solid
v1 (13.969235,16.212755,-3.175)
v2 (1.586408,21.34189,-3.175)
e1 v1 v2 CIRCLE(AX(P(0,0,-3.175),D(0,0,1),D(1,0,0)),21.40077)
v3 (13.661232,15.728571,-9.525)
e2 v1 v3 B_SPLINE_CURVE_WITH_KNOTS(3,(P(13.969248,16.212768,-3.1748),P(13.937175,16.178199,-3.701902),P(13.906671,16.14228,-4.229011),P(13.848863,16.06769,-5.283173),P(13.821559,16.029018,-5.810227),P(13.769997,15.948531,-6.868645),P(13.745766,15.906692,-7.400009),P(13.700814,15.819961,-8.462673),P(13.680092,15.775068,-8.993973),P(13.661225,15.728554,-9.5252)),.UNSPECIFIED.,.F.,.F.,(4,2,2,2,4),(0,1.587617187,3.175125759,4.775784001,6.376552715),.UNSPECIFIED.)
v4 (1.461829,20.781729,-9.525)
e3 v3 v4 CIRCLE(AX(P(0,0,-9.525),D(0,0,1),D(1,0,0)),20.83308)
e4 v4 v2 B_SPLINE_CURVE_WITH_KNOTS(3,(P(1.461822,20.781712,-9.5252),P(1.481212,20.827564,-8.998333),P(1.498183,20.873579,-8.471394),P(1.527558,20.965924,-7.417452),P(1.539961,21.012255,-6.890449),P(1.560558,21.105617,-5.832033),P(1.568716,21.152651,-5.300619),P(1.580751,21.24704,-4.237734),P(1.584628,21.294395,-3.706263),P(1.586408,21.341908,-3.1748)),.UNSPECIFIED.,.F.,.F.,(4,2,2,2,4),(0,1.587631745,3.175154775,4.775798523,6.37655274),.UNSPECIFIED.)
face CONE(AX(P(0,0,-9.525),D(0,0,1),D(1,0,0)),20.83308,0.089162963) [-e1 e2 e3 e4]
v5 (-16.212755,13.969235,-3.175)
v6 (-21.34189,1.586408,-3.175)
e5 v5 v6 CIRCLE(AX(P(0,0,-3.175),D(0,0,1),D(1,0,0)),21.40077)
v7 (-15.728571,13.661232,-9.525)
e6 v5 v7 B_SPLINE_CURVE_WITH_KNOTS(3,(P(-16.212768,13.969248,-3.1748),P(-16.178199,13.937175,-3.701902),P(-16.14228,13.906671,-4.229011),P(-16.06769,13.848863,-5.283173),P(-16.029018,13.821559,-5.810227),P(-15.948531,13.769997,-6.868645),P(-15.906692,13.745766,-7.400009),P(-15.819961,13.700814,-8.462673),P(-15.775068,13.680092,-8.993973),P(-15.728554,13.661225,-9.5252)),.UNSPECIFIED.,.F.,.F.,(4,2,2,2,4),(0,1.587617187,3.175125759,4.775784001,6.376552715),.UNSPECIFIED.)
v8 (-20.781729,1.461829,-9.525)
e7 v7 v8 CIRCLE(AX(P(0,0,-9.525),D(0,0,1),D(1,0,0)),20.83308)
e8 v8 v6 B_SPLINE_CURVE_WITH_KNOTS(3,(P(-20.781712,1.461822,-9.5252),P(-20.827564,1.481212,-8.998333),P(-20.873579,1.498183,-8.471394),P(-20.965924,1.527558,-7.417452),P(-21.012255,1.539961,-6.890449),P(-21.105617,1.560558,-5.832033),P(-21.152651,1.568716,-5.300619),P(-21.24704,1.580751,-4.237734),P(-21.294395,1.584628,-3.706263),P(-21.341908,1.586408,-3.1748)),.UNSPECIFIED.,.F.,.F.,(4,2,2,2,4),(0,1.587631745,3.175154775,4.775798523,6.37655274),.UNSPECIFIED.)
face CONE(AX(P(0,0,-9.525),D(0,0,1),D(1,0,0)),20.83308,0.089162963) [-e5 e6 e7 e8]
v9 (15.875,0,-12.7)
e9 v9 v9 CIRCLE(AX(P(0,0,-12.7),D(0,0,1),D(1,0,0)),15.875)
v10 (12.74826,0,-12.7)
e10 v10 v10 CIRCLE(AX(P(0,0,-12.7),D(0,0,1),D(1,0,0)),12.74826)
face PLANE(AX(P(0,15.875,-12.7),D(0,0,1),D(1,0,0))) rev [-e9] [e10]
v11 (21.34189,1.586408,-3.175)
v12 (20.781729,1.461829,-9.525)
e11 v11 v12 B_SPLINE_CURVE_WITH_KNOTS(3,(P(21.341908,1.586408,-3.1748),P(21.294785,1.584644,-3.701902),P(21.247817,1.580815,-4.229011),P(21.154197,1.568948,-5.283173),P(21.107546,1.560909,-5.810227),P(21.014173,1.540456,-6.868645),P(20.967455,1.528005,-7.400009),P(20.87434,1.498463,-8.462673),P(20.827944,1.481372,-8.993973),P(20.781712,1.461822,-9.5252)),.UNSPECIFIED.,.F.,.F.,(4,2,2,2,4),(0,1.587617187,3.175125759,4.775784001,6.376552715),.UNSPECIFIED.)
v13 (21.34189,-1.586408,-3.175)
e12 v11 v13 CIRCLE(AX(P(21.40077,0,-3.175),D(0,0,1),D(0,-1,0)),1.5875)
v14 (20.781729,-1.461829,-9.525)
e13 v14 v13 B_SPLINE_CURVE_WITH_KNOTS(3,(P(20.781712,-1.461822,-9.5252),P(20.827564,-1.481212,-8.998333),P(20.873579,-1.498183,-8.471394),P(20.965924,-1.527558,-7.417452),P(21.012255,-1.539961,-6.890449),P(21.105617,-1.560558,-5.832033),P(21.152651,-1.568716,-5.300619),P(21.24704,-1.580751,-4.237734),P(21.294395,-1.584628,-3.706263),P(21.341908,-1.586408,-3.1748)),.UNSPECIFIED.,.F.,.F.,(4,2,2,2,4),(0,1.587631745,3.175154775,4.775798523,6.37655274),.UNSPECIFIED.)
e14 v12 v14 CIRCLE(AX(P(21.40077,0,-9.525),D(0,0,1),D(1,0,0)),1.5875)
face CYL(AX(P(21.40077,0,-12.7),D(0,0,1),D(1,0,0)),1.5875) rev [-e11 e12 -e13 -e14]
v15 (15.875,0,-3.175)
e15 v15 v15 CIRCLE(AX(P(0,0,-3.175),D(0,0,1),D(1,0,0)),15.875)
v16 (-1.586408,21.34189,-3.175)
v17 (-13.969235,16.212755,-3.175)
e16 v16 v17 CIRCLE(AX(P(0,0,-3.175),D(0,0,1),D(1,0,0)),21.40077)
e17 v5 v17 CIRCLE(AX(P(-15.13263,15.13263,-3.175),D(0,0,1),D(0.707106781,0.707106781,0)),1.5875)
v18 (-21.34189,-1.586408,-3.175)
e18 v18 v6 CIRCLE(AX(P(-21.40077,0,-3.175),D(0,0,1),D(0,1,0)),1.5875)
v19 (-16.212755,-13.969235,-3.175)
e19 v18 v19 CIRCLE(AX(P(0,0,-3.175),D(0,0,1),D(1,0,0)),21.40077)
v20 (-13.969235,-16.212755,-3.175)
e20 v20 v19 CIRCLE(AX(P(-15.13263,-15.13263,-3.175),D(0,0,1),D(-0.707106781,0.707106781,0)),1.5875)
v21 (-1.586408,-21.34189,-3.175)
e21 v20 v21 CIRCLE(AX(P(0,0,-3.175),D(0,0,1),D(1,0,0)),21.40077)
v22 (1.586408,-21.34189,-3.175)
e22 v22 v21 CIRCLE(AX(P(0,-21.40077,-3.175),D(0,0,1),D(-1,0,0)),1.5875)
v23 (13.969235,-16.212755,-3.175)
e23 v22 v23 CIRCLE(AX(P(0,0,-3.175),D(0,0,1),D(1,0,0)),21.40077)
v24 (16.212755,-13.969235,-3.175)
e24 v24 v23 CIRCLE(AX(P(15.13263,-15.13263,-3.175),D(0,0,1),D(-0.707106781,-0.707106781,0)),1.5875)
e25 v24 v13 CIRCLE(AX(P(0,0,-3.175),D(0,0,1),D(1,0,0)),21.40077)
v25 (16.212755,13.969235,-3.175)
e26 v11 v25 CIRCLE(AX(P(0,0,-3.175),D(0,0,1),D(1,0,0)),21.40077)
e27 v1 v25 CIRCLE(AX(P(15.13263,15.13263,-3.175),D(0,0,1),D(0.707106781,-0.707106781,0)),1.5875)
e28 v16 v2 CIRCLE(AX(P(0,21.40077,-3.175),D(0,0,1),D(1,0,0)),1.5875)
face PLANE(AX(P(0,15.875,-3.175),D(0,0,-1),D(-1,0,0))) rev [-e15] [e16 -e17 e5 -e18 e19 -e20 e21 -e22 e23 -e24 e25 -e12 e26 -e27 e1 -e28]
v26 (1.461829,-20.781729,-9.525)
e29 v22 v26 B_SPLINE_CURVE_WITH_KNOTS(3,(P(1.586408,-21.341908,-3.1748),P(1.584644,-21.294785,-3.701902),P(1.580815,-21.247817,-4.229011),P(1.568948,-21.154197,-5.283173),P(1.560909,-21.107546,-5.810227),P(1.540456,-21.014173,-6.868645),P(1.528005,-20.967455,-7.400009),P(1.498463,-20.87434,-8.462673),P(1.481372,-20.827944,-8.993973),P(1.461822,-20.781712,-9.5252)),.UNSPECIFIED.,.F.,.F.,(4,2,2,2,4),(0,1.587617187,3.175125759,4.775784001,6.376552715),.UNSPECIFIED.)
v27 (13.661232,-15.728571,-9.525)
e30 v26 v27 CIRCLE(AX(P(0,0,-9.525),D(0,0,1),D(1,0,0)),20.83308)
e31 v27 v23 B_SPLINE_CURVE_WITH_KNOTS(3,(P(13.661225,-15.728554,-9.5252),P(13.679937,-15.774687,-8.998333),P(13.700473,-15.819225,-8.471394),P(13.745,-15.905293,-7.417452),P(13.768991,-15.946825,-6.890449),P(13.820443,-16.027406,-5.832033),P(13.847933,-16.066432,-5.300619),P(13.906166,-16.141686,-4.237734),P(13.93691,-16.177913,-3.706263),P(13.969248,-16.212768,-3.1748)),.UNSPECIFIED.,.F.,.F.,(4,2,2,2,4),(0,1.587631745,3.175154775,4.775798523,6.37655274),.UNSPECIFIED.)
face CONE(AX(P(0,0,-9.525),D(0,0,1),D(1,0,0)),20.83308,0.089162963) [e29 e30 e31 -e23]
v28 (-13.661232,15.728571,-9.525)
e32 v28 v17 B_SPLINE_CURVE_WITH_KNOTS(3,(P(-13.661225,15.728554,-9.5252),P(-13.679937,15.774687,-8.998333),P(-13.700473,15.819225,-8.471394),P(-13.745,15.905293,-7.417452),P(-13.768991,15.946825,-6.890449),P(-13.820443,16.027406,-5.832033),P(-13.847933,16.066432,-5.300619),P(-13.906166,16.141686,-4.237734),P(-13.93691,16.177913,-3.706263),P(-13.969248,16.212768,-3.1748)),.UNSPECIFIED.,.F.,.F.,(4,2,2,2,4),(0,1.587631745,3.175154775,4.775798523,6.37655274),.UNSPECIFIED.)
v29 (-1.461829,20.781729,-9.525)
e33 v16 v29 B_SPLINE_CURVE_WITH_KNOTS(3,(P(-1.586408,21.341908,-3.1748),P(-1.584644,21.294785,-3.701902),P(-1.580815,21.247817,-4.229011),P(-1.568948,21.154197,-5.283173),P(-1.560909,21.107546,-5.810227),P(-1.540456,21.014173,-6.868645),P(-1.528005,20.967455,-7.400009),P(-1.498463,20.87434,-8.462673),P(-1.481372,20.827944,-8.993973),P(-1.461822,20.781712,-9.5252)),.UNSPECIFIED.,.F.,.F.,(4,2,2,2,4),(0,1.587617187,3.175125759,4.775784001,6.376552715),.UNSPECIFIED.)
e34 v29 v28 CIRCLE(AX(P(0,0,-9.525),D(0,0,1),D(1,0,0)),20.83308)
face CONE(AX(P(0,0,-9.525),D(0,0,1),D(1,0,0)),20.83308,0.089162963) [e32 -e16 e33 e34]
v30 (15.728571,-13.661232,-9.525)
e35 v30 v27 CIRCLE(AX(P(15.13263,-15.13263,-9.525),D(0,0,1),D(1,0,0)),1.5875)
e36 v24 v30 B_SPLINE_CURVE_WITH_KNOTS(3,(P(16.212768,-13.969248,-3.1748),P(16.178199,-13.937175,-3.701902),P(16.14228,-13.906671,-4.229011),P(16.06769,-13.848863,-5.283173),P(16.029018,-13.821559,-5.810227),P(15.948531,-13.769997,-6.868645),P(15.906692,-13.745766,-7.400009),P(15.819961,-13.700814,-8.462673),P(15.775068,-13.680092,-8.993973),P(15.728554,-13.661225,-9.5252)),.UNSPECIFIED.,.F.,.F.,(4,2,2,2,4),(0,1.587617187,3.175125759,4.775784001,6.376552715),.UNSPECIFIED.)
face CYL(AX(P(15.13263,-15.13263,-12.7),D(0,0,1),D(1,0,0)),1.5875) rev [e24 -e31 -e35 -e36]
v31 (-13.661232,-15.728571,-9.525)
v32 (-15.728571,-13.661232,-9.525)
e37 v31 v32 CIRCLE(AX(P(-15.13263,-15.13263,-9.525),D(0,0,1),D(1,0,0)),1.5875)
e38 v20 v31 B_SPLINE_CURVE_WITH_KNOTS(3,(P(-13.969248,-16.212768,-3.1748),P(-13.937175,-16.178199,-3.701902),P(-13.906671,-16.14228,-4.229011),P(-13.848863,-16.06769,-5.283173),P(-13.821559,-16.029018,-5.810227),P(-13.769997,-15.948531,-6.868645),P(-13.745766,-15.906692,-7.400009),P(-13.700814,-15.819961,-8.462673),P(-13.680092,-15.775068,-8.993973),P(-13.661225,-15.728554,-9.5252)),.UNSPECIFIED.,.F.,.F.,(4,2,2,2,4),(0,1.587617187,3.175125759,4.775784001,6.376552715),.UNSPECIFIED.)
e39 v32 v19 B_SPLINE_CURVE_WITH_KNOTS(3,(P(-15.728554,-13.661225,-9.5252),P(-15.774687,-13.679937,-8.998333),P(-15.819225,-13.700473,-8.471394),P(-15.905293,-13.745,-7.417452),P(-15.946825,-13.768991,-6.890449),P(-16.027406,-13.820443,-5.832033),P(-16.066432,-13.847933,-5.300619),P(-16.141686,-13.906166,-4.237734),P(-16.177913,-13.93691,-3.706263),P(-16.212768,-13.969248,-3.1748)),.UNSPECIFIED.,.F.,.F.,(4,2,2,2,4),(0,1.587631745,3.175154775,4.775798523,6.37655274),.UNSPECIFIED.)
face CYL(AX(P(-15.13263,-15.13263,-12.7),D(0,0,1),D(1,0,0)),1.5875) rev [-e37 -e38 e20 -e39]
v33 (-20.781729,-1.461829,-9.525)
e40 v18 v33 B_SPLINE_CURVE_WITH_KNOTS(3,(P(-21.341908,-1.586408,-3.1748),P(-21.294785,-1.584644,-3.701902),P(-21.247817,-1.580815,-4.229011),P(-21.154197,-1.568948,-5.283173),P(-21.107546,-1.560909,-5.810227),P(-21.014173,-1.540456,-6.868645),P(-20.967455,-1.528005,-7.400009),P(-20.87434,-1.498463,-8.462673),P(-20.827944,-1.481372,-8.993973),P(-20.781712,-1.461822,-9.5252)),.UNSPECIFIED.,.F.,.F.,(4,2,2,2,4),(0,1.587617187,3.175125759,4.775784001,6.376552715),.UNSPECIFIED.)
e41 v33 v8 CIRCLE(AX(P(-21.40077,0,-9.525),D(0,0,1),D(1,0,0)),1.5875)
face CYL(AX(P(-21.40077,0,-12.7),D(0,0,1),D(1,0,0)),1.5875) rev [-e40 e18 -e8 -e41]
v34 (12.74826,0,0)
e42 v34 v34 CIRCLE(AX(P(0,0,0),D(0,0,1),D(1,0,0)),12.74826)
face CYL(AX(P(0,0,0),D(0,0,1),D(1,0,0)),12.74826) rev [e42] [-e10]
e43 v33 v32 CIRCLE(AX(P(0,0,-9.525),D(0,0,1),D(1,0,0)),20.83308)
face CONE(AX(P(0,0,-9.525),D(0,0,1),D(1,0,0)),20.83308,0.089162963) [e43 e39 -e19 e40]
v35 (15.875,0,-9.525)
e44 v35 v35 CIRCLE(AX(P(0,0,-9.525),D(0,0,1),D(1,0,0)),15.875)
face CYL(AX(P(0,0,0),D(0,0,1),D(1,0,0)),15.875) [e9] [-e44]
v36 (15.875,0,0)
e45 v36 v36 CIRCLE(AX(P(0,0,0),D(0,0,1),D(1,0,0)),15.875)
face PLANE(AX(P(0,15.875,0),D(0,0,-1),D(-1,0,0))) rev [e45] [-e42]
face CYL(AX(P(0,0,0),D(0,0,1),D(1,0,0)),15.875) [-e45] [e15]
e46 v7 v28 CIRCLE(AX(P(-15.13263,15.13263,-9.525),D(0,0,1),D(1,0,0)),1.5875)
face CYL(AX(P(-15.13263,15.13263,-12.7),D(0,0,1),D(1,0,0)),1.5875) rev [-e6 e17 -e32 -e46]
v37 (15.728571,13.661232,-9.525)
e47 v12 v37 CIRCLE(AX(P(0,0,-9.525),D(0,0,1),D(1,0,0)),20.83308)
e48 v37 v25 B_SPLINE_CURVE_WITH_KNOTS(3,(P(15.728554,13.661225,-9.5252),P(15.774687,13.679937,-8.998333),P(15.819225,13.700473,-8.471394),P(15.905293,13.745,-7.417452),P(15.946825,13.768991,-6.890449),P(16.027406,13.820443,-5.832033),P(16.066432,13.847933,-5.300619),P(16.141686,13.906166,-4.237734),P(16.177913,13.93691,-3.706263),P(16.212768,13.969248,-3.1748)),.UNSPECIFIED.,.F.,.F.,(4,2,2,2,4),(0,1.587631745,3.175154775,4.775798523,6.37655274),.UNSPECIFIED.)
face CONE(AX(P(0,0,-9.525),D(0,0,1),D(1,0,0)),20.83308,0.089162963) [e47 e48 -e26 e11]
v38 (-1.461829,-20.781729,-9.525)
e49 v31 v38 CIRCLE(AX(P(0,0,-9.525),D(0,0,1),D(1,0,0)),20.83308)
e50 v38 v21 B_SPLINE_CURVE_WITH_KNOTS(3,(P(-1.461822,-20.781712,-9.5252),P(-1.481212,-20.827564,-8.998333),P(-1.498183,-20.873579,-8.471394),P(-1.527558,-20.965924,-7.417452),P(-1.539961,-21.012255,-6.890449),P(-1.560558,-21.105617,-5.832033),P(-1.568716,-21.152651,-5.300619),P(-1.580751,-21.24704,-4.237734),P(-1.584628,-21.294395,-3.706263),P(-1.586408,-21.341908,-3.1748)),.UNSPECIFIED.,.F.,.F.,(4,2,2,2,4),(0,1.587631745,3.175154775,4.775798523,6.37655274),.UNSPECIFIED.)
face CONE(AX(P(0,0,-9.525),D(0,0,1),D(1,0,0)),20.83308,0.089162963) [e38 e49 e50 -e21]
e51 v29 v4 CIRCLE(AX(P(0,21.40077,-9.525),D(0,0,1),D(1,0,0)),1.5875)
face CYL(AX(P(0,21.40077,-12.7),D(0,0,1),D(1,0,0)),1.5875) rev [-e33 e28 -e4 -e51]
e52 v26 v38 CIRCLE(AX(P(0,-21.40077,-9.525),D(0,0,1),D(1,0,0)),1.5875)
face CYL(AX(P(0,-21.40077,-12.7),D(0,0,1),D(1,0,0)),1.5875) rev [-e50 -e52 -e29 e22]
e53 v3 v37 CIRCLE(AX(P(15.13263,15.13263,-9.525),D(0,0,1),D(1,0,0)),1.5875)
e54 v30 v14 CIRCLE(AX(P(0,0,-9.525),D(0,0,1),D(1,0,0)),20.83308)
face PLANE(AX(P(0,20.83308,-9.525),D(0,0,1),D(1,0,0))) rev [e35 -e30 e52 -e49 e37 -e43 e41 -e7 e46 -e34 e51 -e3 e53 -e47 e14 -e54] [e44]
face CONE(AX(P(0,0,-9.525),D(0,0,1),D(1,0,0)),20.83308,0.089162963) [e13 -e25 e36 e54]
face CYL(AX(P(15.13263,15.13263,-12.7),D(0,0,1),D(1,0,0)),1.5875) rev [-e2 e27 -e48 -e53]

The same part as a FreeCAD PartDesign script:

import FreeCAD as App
import Part
import Sketcher
from FreeCAD import Vector
Q = App.Units.Quantity

doc = App.newDocument("Part")
body = doc.addObject("PartDesign::Body", "Body")

sketch1 = body.newObject("Sketcher::SketchObject", "Sketch")
sketch1.AttachmentSupport = (doc.getObject("YZ_Plane"), [""])
sketch1.MapMode = "FlatFace"
sketch1.addGeometry(Part.LineSegment(Vector(15.9, 0, 0), Vector(12.7, 0, 0)), False)
sketch1.addGeometry(Part.LineSegment(Vector(12.7, 0, 0), Vector(12.7, -12.7, 0)), False)
sketch1.addGeometry(Part.LineSegment(Vector(12.7, -12.7, 0), Vector(15.9, -12.7, 0)), False)
sketch1.addGeometry(Part.LineSegment(Vector(15.9, -12.7, 0), Vector(15.9, -9.5, 0)), False)
sketch1.addGeometry(Part.LineSegment(Vector(15.9, -9.5, 0), Vector(20.8, -9.5, 0)), False)
sketch1.addGeometry(Part.LineSegment(Vector(20.8, -9.5, 0), Vector(21.4, -3.2, 0)), False)
sketch1.addGeometry(Part.LineSegment(Vector(21.4, -3.2, 0), Vector(15.9, -3.2, 0)), False)
sketch1.addGeometry(Part.LineSegment(Vector(15.9, -3.2, 0), Vector(15.9, 0, 0)), False)
sketch1.addConstraint(Sketcher.Constraint("Coincident", 0, 2, 1, 1))
sketch1.addConstraint(Sketcher.Constraint("Coincident", 1, 2, 2, 1))
sketch1.addConstraint(Sketcher.Constraint("Coincident", 2, 2, 3, 1))
sketch1.addConstraint(Sketcher.Constraint("Coincident", 3, 2, 4, 1))
sketch1.addConstraint(Sketcher.Constraint("Coincident", 4, 2, 5, 1))
sketch1.addConstraint(Sketcher.Constraint("Coincident", 5, 2, 6, 1))
sketch1.addConstraint(Sketcher.Constraint("Coincident", 6, 2, 7, 1))
sketch1.addConstraint(Sketcher.Constraint("Coincident", 7, 2, 0, 1))
sketch1.addConstraint(Sketcher.Constraint("Horizontal", 0))
sketch1.addConstraint(Sketcher.Constraint("Vertical", 1))
sketch1.addConstraint(Sketcher.Constraint("Horizontal", 2))
sketch1.addConstraint(Sketcher.Constraint("Vertical", 3))
sketch1.addConstraint(Sketcher.Constraint("Horizontal", 4))
sketch1.addConstraint(Sketcher.Constraint("Horizontal", 6))
sketch1.addConstraint(Sketcher.Constraint("Vertical", 7))
sketch1.addConstraint(Sketcher.Constraint("PointOnObject", 0, 2, -1))
sketch1.addConstraint(Sketcher.Constraint("Vertical", 3, 2, 6, 2))
sketch1.addConstraint(Sketcher.Constraint("Equal", 3, 7))
sketch1.addConstraint(Sketcher.Constraint("DistanceY", 1, 2, 1, 1, Q("0.5 in")))
sketch1.addConstraint(Sketcher.Constraint("DistanceY", 3, 1, 3, 2, Q("0.125 in")))
sketch1.addConstraint(Sketcher.Constraint("DistanceX", 0, 2, 0, 1, Q("0.1231 in")))
sketch1.addConstraint(Sketcher.Constraint("DistanceX", 4, 1, 4, 2, Q("0.1952 in")))
sketch1.addConstraint(Sketcher.Constraint("DistanceX", -1, 1, 2, 2, Q("0.625 in")))
sketch1.addConstraint(Sketcher.Constraint("DistanceX", 6, 2, 6, 1, 5.52577))
revolution = body.newObject("PartDesign::Revolution", "Revolution")
revolution.Profile = sketch1
revolution.ReferenceAxis = (sketch1, ["V_Axis"])
revolution.Angle = 360

sketch2 = body.newObject("Sketcher::SketchObject", "Sketch001")
sketch2.AttachmentSupport = (doc.getObject("XY_Plane"), [""])
sketch2.MapMode = "FlatFace"
sketch2.AttachmentOffset = App.Placement(Vector(0, 0, -0.125 * 25.4), App.Rotation())
sketch2.addGeometry(Part.Circle(Vector(0, 21.4, 0), Vector(0, 0, 1), 1.6), False)
sketch2.addConstraint(Sketcher.Constraint("PointOnObject", 0, 3, -2))
sketch2.addConstraint(Sketcher.Constraint("Diameter", 0, Q("0.125 in")))
sketch2.addConstraint(Sketcher.Constraint("DistanceY", -1, 1, 0, 3, 21.40077))
pocket1 = body.newObject("PartDesign::Pocket", "Pocket")
pocket1.Profile = sketch2
pocket1.Type = "ThroughAll"
doc.recompute()

polarpattern = body.newObject("PartDesign::PolarPattern", "PolarPattern")
polarpattern.Originals = [pocket1]
polarpattern.Axis = (doc.getObject("Z_Axis"), [""])
polarpattern.Angle = 360
polarpattern.Occurrences = 8
body.Tip = polarpattern

doc.recompute()
